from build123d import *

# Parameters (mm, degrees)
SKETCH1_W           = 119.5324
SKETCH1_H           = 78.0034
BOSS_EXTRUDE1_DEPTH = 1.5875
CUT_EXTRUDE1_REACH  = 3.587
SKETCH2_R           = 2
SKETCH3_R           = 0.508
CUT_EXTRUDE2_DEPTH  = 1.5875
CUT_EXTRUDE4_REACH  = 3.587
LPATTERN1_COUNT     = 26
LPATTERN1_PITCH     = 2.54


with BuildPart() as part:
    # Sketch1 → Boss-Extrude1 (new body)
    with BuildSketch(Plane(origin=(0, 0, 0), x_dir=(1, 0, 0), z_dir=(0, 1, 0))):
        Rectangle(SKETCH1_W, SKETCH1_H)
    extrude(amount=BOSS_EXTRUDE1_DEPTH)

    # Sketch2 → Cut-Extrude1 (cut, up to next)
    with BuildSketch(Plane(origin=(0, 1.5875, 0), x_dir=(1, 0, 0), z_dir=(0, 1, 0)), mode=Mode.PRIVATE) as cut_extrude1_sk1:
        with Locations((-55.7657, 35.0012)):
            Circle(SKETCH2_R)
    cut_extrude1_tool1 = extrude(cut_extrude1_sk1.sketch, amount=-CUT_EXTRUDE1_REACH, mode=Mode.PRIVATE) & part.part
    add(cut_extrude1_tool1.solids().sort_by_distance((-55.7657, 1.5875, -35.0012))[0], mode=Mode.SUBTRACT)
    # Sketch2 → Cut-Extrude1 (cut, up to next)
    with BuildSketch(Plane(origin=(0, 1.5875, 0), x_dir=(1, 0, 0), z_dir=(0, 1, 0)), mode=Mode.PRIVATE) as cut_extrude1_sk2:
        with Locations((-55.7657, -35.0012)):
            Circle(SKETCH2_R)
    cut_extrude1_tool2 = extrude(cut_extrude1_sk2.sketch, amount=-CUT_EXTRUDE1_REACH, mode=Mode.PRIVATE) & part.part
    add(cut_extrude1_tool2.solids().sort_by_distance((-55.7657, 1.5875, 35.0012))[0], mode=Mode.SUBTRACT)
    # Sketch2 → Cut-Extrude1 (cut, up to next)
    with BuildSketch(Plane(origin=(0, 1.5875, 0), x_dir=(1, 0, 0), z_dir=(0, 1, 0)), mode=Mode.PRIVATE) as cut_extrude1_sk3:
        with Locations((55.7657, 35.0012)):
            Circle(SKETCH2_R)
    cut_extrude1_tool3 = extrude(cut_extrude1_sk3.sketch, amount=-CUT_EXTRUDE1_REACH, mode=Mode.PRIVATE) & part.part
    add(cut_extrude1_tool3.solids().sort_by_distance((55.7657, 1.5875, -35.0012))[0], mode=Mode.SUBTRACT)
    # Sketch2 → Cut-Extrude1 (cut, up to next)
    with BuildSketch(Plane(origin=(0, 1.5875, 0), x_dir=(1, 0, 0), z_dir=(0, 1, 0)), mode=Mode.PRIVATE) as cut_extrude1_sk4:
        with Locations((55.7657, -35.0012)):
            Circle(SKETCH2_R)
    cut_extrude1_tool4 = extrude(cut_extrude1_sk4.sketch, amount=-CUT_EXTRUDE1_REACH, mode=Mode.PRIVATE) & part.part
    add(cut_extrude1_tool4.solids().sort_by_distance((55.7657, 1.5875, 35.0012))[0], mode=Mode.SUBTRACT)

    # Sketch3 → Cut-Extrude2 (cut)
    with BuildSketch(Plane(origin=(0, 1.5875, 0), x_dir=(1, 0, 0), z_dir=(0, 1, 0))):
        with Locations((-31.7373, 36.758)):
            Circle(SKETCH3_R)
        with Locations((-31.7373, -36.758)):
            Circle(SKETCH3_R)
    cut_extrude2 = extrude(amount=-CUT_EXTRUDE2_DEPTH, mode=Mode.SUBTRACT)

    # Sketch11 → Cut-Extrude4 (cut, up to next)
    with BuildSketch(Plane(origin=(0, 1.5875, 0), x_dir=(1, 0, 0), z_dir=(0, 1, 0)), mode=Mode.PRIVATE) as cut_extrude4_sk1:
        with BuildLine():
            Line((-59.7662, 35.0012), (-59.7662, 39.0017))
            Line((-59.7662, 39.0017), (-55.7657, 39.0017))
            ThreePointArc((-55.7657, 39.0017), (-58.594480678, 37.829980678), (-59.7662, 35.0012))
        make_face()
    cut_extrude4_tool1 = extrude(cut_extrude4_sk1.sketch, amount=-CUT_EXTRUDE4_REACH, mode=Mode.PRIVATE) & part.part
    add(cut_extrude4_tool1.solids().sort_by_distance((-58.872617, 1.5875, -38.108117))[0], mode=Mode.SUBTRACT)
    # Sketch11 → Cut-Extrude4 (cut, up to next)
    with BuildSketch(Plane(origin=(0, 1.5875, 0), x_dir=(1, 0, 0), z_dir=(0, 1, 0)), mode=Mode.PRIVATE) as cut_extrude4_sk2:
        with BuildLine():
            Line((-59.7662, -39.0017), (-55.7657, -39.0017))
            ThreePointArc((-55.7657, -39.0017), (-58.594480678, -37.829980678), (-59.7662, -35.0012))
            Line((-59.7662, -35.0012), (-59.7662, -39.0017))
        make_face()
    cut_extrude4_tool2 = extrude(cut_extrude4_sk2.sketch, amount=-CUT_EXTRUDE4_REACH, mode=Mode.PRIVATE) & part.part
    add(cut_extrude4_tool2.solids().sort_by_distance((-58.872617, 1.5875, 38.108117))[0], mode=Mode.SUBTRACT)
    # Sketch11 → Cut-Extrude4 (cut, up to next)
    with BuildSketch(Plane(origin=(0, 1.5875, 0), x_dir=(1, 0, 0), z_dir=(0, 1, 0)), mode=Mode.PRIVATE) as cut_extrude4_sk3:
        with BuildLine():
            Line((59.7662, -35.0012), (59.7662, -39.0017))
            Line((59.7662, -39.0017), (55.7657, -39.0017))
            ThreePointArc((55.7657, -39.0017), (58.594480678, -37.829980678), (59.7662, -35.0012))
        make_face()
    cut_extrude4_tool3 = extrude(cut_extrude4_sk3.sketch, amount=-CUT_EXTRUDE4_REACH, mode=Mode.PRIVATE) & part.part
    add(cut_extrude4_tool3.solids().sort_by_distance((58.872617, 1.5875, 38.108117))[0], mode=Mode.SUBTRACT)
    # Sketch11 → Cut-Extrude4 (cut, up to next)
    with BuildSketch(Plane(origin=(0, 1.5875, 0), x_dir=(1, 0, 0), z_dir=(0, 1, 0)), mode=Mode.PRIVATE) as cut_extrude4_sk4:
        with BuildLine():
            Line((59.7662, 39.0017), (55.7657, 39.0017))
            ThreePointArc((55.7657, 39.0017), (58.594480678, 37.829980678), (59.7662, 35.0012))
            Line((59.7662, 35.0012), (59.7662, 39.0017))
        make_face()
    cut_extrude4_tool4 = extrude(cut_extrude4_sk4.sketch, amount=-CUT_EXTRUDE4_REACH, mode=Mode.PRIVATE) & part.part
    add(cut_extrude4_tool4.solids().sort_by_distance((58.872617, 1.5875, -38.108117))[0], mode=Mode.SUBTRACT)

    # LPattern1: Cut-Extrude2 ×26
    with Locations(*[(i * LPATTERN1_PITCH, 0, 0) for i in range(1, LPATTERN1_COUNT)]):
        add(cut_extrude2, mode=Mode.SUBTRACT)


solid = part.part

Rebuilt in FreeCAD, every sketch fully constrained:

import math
import FreeCAD as App
import Part
import Sketcher

V = App.Vector
Q = App.Units.Quantity

doc = App.newDocument("Part")
params = doc.addObject("Spreadsheet::Sheet", "Params")
for row, (alias, value) in enumerate([
    ("sketch1_width", "4.706 in"),
    ("sketch1_height", "3.071 in"),
    ("pad1_length", "0.0625 in"),
    ("sketch6_diameter", "0.04 in"),
    ("pocket5_length", "0.0625 in"),
    ("linearpattern_pitch", "0.1 in"),
], start=1):
    params.set(f"A{row}", alias)
    params.set(f"B{row}", "=" + value)
    params.setAlias(f"B{row}", alias)

body = doc.addObject("PartDesign::Body", "Body")

sketch1 = doc.addObject("Sketcher::SketchObject", "Sketch")
body.addObject(sketch1)
sketch1.AttachmentSupport = (doc.XZ_Plane, [""])
sketch1.MapMode = "FlatFace"
sketch1.addGeometry([
    Part.LineSegment(V(-59.7662, -39.0017, 0), V(-59.7662, 39.0017, 0)),
    Part.LineSegment(V(-59.7662, 39.0017, 0), V(59.7662, 39.0017, 0)),
    Part.LineSegment(V(59.7662, 39.0017, 0), V(59.7662, -39.0017, 0)),
    Part.LineSegment(V(59.7662, -39.0017, 0), V(-59.7662, -39.0017, 0)),
], False)
sketch1.addConstraint([
    Sketcher.Constraint("Coincident", 0, 2, 1, 1),
    Sketcher.Constraint("Coincident", 1, 2, 2, 1),
    Sketcher.Constraint("Coincident", 2, 2, 3, 1),
    Sketcher.Constraint("Coincident", 3, 2, 0, 1),
    Sketcher.Constraint("Vertical", 0),
    Sketcher.Constraint("Horizontal", 1),
    Sketcher.Constraint("Vertical", 2),
    Sketcher.Constraint("Horizontal", 3),
    Sketcher.Constraint("Symmetric", 0, 2, 2, 2, -1, 1),
    Sketcher.Constraint("DistanceX", 1, 1, 1, 2, Q("4.706 in")),
    Sketcher.Constraint("DistanceY", 0, 1, 0, 2, Q("3.071 in")),
])
sketch1.setExpression("Constraints[9]", "Params.sketch1_width")
sketch1.setExpression("Constraints[10]", "Params.sketch1_height")
pad1 = doc.addObject("PartDesign::Pad", "Pad")
body.addObject(pad1)
pad1.Profile = sketch1
pad1.setExpression("Length", "Params.pad1_length")
pad1.Reversed = True

sketch2 = doc.addObject("Sketcher::SketchObject", "Sketch001")
body.addObject(sketch2)
sketch2.AttachmentSupport = (doc.XZ_Plane, [""])
sketch2.MapMode = "FlatFace"
sketch2.AttachmentOffset = App.Placement(V(0, 0, -0.0625 * 25.4), App.Rotation())
sketch2.addGeometry(Part.Circle(V(-55.7657, -35.0012, 0), V(0, 0, 1), 2), False)
sketch2.addConstraint([
    Sketcher.Constraint("Diameter", 0, Q("4 mm")),
    Sketcher.Constraint("DistanceY", 0, 3, -1, 1, Q("1.378 in")),
    Sketcher.Constraint("DistanceX", 0, 3, -1, 1, Q("2.1955 in")),
])
pocket1 = doc.addObject("PartDesign::Pocket", "Pocket")
body.addObject(pocket1)
pocket1.Profile = sketch2
pocket1.Type = "UpToFirst"
pocket1.Reversed = True

sketch3 = doc.addObject("Sketcher::SketchObject", "Sketch002")
body.addObject(sketch3)
sketch3.AttachmentSupport = (doc.XZ_Plane, [""])
sketch3.MapMode = "FlatFace"
sketch3.AttachmentOffset = App.Placement(V(0, 0, -0.0625 * 25.4), App.Rotation())
sketch3.addGeometry(Part.Circle(V(-55.7657, 35.0012, 0), V(0, 0, 1), 2), False)
sketch3.addConstraint([
    Sketcher.Constraint("Diameter", 0, Q("4 mm")),
    Sketcher.Constraint("DistanceY", -1, 1, 0, 3, Q("1.378 in")),
    Sketcher.Constraint("DistanceX", 0, 3, -1, 1, Q("2.1955 in")),
])
pocket2 = doc.addObject("PartDesign::Pocket", "Pocket001")
body.addObject(pocket2)
pocket2.Profile = sketch3
pocket2.Type = "UpToFirst"
pocket2.Reversed = True

sketch4 = doc.addObject("Sketcher::SketchObject", "Sketch003")
body.addObject(sketch4)
sketch4.AttachmentSupport = (doc.XZ_Plane, [""])
sketch4.MapMode = "FlatFace"
sketch4.AttachmentOffset = App.Placement(V(0, 0, -0.0625 * 25.4), App.Rotation())
sketch4.addGeometry(Part.Circle(V(55.7657, -35.0012, 0), V(0, 0, 1), 2), False)
sketch4.addConstraint([
    Sketcher.Constraint("Diameter", 0, Q("4 mm")),
    Sketcher.Constraint("DistanceY", 0, 3, -1, 1, Q("1.378 in")),
    Sketcher.Constraint("DistanceX", -1, 1, 0, 3, Q("2.1955 in")),
])
pocket3 = doc.addObject("PartDesign::Pocket", "Pocket002")
body.addObject(pocket3)
pocket3.Profile = sketch4
pocket3.Type = "UpToFirst"
pocket3.Reversed = True

sketch5 = doc.addObject("Sketcher::SketchObject", "Sketch004")
body.addObject(sketch5)
sketch5.AttachmentSupport = (doc.XZ_Plane, [""])
sketch5.MapMode = "FlatFace"
sketch5.AttachmentOffset = App.Placement(V(0, 0, -0.0625 * 25.4), App.Rotation())
sketch5.addGeometry(Part.Circle(V(55.7657, 35.0012, 0), V(0, 0, 1), 2), False)
sketch5.addConstraint([
    Sketcher.Constraint("Diameter", 0, Q("4 mm")),
    Sketcher.Constraint("DistanceY", -1, 1, 0, 3, Q("1.378 in")),
    Sketcher.Constraint("DistanceX", -1, 1, 0, 3, Q("2.1955 in")),
])
pocket4 = doc.addObject("PartDesign::Pocket", "Pocket003")
body.addObject(pocket4)
pocket4.Profile = sketch5
pocket4.Type = "UpToFirst"
pocket4.Reversed = True

sketch6 = doc.addObject("Sketcher::SketchObject", "Sketch005")
body.addObject(sketch6)
sketch6.AttachmentSupport = (doc.XZ_Plane, [""])
sketch6.MapMode = "FlatFace"
sketch6.AttachmentOffset = App.Placement(V(0, 0, -0.0625 * 25.4), App.Rotation())
sketch6.addGeometry([
    Part.Circle(V(-31.7373, -36.758, 0), V(0, 0, 1), 0.508),
    Part.Circle(V(-31.7373, 36.758, 0), V(0, 0, 1), 0.508),
], False)
sketch6.addConstraint([
    Sketcher.Constraint("Equal", 0, 1),
    Sketcher.Constraint("Symmetric", 0, 3, 1, 3, -1),
    Sketcher.Constraint("Diameter", 0, Q("0.04 in")),
    Sketcher.Constraint("DistanceX", 0, 3, -1, 1, Q("1.2495 in")),
    Sketcher.Constraint("DistanceY", 0, 3, -1, 1, Q("36.758 mm")),
])
sketch6.setExpression("Constraints[2]", "Params.sketch6_diameter")
pocket5 = doc.addObject("PartDesign::Pocket", "Pocket004")
body.addObject(pocket5)
pocket5.Profile = sketch6
pocket5.setExpression("Length", "Params.pocket5_length")
pocket5.Reversed = True

sketch7 = doc.addObject("Sketcher::SketchObject", "Sketch006")
body.addObject(sketch7)
sketch7.AttachmentSupport = (doc.XZ_Plane, [""])
sketch7.MapMode = "FlatFace"
sketch7.AttachmentOffset = App.Placement(V(0, 0, -0.0625 * 25.4), App.Rotation())
sketch7.addGeometry([
    Part.LineSegment(V(-59.7662, -39.0017, 0), V(-59.7662, -35.0012, 0)),
    Part.ArcOfCircle(Part.Circle(V(-55.7657, -35.0012, 0), V(0, 0, 1), 4.0005), math.radians(180), math.radians(270)),
    Part.LineSegment(V(-55.7657, -39.0017, 0), V(-59.7662, -39.0017, 0)),
], False)
sketch7.addConstraint([
    Sketcher.Constraint("Tangent", 0, 2, 1, 1),
    Sketcher.Constraint("Tangent", 1, 2, 2, 1),
    Sketcher.Constraint("Coincident", 2, 2, 0, 1),
    Sketcher.Constraint("Vertical", 0),
    Sketcher.Constraint("Horizontal", 2),
    Sketcher.Constraint("Radius", 1, Q("0.1575 in")),
    Sketcher.Constraint("DistanceY", 1, 3, -1, 1, Q("1.378 in")),
    Sketcher.Constraint("DistanceX", 0, 2, -1, 1, Q("2.353 in")),
])
pocket6 = doc.addObject("PartDesign::Pocket", "Pocket005")
body.addObject(pocket6)
pocket6.Profile = sketch7
pocket6.Type = "UpToFirst"
pocket6.Reversed = True

sketch8 = doc.addObject("Sketcher::SketchObject", "Sketch007")
body.addObject(sketch8)
sketch8.AttachmentSupport = (doc.XZ_Plane, [""])
sketch8.MapMode = "FlatFace"
sketch8.AttachmentOffset = App.Placement(V(0, 0, -0.0625 * 25.4), App.Rotation())
sketch8.addGeometry([
    Part.LineSegment(V(-59.7662, 39.0017, 0), V(-55.7657, 39.0017, 0)),
    Part.ArcOfCircle(Part.Circle(V(-55.7657, 35.0012, 0), V(0, 0, 1), 4.0005), math.radians(90), math.radians(180)),
    Part.LineSegment(V(-59.7662, 35.0012, 0), V(-59.7662, 39.0017, 0)),
], False)
sketch8.addConstraint([
    Sketcher.Constraint("Tangent", 0, 2, 1, 1),
    Sketcher.Constraint("Tangent", 1, 2, 2, 1),
    Sketcher.Constraint("Coincident", 2, 2, 0, 1),
    Sketcher.Constraint("Horizontal", 0),
    Sketcher.Constraint("Vertical", 2),
    Sketcher.Constraint("Radius", 1, Q("0.1575 in")),
    Sketcher.Constraint("DistanceY", -1, 1, 1, 3, Q("1.378 in")),
    Sketcher.Constraint("DistanceX", 1, 2, -1, 1, Q("2.353 in")),
])
pocket7 = doc.addObject("PartDesign::Pocket", "Pocket006")
body.addObject(pocket7)
pocket7.Profile = sketch8
pocket7.Type = "UpToFirst"
pocket7.Reversed = True

sketch9 = doc.addObject("Sketcher::SketchObject", "Sketch008")
body.addObject(sketch9)
sketch9.AttachmentSupport = (doc.XZ_Plane, [""])
sketch9.MapMode = "FlatFace"
sketch9.AttachmentOffset = App.Placement(V(0, 0, -0.0625 * 25.4), App.Rotation())
sketch9.addGeometry([
    Part.LineSegment(V(59.7662, 39.0017, 0), V(59.7662, 35.0012, 0)),
    Part.ArcOfCircle(Part.Circle(V(55.7657, 35.0012, 0), V(0, 0, 1), 4.0005), math.radians(0), math.radians(90)),
    Part.LineSegment(V(55.7657, 39.0017, 0), V(59.7662, 39.0017, 0)),
], False)
sketch9.addConstraint([
    Sketcher.Constraint("Tangent", 0, 2, 1, 1),
    Sketcher.Constraint("Tangent", 1, 2, 2, 1),
    Sketcher.Constraint("Coincident", 2, 2, 0, 1),
    Sketcher.Constraint("Vertical", 0),
    Sketcher.Constraint("Horizontal", 2),
    Sketcher.Constraint("Radius", 1, Q("0.1575 in")),
    Sketcher.Constraint("DistanceY", -1, 1, 1, 3, Q("1.378 in")),
    Sketcher.Constraint("DistanceX", -1, 1, 0, 2, Q("2.353 in")),
])
pocket8 = doc.addObject("PartDesign::Pocket", "Pocket007")
body.addObject(pocket8)
pocket8.Profile = sketch9
pocket8.Type = "UpToFirst"
pocket8.Reversed = True

sketch10 = doc.addObject("Sketcher::SketchObject", "Sketch009")
body.addObject(sketch10)
sketch10.AttachmentSupport = (doc.XZ_Plane, [""])
sketch10.MapMode = "FlatFace"
sketch10.AttachmentOffset = App.Placement(V(0, 0, -0.0625 * 25.4), App.Rotation())
sketch10.addGeometry([
    Part.LineSegment(V(59.7662, -39.0017, 0), V(55.7657, -39.0017, 0)),
    Part.ArcOfCircle(Part.Circle(V(55.7657, -35.0012, 0), V(0, 0, 1), 4.0005), math.radians(-90), math.radians(0)),
    Part.LineSegment(V(59.7662, -35.0012, 0), V(59.7662, -39.0017, 0)),
], False)
sketch10.addConstraint([
    Sketcher.Constraint("Tangent", 0, 2, 1, 1),
    Sketcher.Constraint("Tangent", 1, 2, 2, 1),
    Sketcher.Constraint("Coincident", 2, 2, 0, 1),
    Sketcher.Constraint("Horizontal", 0),
    Sketcher.Constraint("Vertical", 2),
    Sketcher.Constraint("Radius", 1, Q("0.1575 in")),
    Sketcher.Constraint("DistanceY", 1, 3, -1, 1, Q("1.378 in")),
    Sketcher.Constraint("DistanceX", -1, 1, 1, 2, Q("2.353 in")),
])
pocket9 = doc.addObject("PartDesign::Pocket", "Pocket008")
body.addObject(pocket9)
pocket9.Profile = sketch10
pocket9.Type = "UpToFirst"
pocket9.Reversed = True
doc.recompute()

linearpattern = doc.addObject("PartDesign::LinearPattern", "LinearPattern")
body.addObject(linearpattern)
linearpattern.Originals = [pocket5]
linearpattern.Direction = (doc.X_Axis, [""])
linearpattern.Mode = "offset"
linearpattern.setExpression("Offset", "Params.linearpattern_pitch")
linearpattern.Occurrences = 26
body.Tip = linearpattern

doc.recompute()
